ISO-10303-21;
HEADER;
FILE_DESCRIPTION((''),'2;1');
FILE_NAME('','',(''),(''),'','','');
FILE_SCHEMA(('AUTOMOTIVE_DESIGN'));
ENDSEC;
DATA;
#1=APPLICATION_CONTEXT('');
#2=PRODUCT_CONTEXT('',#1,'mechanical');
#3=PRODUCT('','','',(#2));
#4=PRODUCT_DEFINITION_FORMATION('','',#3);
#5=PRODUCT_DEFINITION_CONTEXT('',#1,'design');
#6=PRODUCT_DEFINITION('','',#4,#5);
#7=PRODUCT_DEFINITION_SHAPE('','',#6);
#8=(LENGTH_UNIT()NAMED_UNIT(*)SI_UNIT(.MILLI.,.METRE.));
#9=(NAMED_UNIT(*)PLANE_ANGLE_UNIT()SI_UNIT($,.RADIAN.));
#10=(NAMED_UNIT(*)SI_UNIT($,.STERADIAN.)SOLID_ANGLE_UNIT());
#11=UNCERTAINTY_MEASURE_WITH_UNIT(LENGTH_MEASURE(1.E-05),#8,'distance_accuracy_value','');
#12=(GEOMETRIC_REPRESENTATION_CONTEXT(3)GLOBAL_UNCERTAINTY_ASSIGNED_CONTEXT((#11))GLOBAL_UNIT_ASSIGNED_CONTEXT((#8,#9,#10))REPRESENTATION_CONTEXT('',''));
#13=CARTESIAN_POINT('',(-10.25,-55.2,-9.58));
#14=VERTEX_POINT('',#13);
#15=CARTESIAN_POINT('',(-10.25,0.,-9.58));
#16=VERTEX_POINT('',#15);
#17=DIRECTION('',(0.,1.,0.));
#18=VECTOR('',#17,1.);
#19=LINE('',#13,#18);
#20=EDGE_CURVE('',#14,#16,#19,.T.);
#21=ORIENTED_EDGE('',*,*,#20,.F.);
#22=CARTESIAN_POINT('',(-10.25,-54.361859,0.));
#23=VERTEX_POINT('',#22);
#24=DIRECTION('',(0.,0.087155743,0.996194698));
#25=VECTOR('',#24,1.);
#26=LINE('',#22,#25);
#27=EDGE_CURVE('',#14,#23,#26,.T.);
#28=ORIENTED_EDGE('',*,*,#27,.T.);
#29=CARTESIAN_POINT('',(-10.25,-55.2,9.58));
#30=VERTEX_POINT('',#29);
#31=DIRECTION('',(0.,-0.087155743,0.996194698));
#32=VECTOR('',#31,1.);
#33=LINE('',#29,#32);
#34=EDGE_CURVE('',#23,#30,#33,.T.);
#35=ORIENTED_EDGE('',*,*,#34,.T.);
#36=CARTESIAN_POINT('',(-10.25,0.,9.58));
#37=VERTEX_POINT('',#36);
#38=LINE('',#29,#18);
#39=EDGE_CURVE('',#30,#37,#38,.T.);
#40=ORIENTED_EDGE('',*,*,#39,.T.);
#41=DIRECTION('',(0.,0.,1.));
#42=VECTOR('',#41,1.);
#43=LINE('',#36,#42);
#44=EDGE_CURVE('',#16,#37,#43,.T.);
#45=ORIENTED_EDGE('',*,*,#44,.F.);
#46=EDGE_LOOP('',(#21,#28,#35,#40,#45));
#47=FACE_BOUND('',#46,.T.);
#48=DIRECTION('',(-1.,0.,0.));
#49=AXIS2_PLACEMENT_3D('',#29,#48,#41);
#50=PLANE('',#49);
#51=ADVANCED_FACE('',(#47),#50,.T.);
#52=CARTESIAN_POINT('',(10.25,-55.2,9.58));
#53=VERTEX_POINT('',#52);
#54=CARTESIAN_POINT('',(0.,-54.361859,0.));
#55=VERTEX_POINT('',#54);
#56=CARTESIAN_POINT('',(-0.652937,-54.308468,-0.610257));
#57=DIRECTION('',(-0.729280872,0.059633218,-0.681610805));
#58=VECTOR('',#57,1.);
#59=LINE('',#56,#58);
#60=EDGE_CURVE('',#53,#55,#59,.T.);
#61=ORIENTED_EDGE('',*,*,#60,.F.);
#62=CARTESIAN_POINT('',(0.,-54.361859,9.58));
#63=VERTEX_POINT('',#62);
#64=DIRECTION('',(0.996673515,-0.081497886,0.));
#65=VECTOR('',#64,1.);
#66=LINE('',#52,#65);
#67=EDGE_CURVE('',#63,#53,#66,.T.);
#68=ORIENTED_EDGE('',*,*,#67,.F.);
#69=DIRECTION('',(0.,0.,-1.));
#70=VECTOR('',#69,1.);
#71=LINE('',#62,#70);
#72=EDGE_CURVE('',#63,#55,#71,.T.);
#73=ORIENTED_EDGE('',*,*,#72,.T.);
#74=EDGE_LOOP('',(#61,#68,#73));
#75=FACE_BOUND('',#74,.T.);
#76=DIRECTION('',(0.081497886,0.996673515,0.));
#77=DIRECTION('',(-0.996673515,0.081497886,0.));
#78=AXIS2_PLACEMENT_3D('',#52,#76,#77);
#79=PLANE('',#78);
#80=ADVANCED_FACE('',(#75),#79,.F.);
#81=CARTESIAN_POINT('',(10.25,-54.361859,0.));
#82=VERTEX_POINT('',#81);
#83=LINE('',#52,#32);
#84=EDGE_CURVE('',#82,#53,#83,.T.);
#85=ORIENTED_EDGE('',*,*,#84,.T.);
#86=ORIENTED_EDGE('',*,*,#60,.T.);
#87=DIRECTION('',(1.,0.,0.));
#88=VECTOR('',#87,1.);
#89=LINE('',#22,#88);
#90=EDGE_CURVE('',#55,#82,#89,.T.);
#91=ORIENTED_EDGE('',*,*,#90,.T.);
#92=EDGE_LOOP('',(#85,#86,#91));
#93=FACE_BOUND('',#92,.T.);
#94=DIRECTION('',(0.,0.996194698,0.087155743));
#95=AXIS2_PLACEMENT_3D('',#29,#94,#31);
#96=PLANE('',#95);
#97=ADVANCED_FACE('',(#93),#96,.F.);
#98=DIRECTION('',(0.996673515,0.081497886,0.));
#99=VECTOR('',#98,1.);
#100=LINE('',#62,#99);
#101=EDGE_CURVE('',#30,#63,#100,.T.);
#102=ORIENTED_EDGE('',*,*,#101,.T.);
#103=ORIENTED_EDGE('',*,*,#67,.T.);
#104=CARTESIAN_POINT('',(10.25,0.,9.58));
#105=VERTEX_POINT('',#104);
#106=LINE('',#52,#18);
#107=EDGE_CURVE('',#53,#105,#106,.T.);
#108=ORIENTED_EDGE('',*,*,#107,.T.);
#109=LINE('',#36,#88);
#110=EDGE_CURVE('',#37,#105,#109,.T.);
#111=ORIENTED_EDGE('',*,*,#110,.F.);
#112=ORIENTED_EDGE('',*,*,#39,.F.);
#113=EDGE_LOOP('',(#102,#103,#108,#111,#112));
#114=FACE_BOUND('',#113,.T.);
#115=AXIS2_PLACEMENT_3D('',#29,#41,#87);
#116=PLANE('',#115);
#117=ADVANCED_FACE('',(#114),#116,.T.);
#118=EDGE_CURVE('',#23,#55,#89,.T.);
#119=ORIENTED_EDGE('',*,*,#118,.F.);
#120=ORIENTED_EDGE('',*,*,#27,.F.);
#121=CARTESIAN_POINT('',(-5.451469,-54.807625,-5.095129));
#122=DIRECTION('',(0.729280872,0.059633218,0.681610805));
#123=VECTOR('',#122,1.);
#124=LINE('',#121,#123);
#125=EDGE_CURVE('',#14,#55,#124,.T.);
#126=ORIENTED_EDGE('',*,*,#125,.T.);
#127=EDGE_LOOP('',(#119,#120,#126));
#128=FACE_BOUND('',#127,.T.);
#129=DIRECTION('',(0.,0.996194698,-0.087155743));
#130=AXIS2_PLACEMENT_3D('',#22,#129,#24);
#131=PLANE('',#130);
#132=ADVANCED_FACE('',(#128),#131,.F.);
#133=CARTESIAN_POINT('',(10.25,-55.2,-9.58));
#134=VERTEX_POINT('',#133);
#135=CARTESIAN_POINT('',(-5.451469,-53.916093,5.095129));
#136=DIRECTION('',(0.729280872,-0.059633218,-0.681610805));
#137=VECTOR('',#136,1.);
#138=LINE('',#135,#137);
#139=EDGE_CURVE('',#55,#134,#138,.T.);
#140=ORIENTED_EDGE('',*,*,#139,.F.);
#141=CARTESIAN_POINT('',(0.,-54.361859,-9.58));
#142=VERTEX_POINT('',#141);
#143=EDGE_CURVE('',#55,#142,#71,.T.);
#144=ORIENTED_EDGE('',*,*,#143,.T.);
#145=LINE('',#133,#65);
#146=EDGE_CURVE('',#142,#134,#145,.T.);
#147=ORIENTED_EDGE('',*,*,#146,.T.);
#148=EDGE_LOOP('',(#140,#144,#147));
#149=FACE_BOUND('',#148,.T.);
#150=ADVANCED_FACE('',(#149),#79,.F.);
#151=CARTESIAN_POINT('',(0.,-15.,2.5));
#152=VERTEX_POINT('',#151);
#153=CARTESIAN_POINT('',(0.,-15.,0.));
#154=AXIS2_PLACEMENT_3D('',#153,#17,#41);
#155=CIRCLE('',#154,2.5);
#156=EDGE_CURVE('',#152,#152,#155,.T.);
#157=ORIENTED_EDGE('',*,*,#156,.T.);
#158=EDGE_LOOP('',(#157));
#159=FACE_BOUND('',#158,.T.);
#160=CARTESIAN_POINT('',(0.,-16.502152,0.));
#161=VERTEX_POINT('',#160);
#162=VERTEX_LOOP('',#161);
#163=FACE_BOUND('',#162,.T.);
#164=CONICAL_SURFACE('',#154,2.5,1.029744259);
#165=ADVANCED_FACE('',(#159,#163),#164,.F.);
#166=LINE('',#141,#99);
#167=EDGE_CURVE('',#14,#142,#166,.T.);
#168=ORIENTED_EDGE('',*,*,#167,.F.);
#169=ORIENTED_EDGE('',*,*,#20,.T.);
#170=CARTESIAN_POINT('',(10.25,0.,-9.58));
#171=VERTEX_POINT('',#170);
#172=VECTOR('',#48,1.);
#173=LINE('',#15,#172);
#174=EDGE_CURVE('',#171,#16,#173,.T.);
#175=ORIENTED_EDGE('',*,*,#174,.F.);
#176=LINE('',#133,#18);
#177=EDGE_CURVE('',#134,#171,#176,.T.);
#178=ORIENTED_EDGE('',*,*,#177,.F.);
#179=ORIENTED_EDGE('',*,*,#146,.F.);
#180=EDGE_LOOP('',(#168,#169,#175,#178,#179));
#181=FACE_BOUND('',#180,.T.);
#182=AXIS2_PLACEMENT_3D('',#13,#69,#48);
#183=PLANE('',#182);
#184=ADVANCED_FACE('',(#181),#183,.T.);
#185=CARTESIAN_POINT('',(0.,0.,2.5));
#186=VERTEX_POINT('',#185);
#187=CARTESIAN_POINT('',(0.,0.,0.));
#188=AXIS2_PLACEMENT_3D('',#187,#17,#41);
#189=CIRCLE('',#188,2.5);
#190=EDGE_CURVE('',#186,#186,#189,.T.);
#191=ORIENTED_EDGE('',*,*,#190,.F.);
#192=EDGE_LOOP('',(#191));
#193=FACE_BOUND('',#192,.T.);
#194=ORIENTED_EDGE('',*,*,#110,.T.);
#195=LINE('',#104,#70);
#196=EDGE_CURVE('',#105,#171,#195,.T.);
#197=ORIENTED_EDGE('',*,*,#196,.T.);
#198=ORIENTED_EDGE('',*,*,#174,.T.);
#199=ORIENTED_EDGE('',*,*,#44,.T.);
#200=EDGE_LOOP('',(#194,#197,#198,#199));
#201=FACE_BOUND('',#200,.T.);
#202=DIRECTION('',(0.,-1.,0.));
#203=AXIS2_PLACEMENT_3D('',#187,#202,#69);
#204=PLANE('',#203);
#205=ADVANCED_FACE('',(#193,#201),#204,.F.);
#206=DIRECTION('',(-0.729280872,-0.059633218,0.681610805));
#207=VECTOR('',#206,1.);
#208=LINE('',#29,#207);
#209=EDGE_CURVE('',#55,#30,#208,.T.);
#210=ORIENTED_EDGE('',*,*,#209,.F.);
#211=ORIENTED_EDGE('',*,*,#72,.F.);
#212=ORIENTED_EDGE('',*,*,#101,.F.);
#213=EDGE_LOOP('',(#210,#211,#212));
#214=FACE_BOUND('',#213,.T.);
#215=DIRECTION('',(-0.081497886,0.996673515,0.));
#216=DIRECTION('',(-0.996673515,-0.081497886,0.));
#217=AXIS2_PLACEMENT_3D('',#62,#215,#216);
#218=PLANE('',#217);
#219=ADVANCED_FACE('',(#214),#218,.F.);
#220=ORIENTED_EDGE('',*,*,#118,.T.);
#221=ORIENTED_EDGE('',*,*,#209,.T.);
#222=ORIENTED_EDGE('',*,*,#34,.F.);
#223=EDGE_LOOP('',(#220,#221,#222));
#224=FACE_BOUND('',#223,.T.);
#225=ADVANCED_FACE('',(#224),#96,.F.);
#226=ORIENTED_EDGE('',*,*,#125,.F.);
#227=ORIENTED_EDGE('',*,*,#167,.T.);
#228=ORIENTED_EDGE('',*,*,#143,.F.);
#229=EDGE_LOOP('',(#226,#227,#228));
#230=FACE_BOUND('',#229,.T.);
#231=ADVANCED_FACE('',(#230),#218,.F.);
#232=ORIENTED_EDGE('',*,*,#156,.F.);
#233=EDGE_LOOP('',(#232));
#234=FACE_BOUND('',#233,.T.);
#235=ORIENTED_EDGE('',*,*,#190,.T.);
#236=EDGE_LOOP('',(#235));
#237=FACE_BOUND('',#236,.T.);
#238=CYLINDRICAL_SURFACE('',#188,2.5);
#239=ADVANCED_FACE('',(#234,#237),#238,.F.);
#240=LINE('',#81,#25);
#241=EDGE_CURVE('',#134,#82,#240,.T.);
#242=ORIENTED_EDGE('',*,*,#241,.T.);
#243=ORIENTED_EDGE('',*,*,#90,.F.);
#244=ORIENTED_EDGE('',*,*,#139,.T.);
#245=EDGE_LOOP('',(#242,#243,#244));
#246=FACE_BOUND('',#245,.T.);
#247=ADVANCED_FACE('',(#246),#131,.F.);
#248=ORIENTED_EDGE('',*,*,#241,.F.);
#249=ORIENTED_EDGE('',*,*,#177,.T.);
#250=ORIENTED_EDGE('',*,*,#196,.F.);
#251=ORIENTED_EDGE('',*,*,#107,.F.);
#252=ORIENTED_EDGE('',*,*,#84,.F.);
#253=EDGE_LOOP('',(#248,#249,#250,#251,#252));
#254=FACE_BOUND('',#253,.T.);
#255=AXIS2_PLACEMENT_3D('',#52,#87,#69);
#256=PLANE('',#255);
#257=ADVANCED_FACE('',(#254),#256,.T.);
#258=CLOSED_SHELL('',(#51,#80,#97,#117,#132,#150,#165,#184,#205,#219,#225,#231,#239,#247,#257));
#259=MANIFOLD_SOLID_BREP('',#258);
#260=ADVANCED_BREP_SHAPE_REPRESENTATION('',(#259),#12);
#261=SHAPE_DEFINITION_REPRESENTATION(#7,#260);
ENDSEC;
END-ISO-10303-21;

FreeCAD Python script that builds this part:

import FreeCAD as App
import Part
import Sketcher
from FreeCAD import Vector
Q = App.Units.Quantity


def add_polygon(sketch, points):
    """Adds a closed chain of lines whose ends are joined by coincident constraints."""
    first, n = sketch.GeometryCount, len(points)
    for a, b in zip(points, points[1:] + points[:1]):
        sketch.addGeometry(Part.LineSegment(App.Vector(*a, 0), App.Vector(*b, 0)), False)
    for i in range(n):
        sketch.addConstraint(Sketcher.Constraint("Coincident", first + i, 2, first + (i + 1) % n, 1))

doc = App.newDocument("Part")
params = doc.addObject("Spreadsheet::Sheet", "Params")
for row, (alias, value) in enumerate([
    ("sketch1_width", "20.5 mm"),
    ("sketch1_height", "19.16 mm"),
    ("pad1_length", "55.2 mm"),
    ("sketch2_height", "19.16 mm"),
    ("sketch3_width", "20.5 mm"),
    ("sketch4_diameter", "5 mm"),
    ("hole_diameter", "5 mm"),
    ("hole_depth", "15 mm"),
], start=1):
    params.set(f"A{row}", alias)
    params.set(f"B{row}", "=" + value)
    params.setAlias(f"B{row}", alias)

body = doc.addObject("PartDesign::Body", "Body")

sketch1 = body.newObject("Sketcher::SketchObject", "Sketch")
sketch1.AttachmentSupport = (doc.getObject("XZ_Plane"), [""])
sketch1.MapMode = "FlatFace"
add_polygon(sketch1, [(-10.25, -9.58), (-10.25, 9.58), (10.25, 9.58), (10.25, -9.58)])
sketch1.addConstraint([
    Sketcher.Constraint("Vertical", 0),
    Sketcher.Constraint("Horizontal", 1),
    Sketcher.Constraint("Vertical", 2),
    Sketcher.Constraint("Horizontal", 3),
    Sketcher.Constraint("Symmetric", 0, 2, 2, 2, -1, 1),
    Sketcher.Constraint("DistanceX", 1, 1, 1, 2, 20.5),
    Sketcher.Constraint("DistanceY", 0, 1, 0, 2, 19.16),
])
sketch1.setExpression("Constraints[9]", "Params.sketch1_width")
sketch1.setExpression("Constraints[10]", "Params.sketch1_height")
pad1 = body.newObject("PartDesign::Pad", "Pad")
pad1.Profile = sketch1
pad1.setExpression("Length", "Params.pad1_length")

sketch2 = body.newObject("Sketcher::SketchObject", "Sketch001")
sketch2.AttachmentSupport = (doc.getObject("YZ_Plane"), [""])
sketch2.MapMode = "FlatFace"
sketch2.AttachmentOffset = App.Placement(Vector(0, 0, 10.25), App.Rotation())
add_polygon(sketch2, [(-54.361859, 0), (-55.2, 9.58), (-55.2, -9.58)])
sketch2.addConstraint([
    Sketcher.Constraint("Vertical", 1),
    Sketcher.Constraint("PointOnObject", 2, 2, -1),
    Sketcher.Constraint("Equal", 0, 2),
    Sketcher.Constraint("Angle", 0, Q("95 deg")),
    Sketcher.Constraint("DistanceY", 1, 2, 1, 1, 19.16),
    Sketcher.Constraint("DistanceX", 0, 2, -1, 1, 55.2),
])
sketch2.setExpression("Constraints[7]", "Params.sketch2_height")
pocket1 = body.newObject("PartDesign::Pocket", "Pocket")
pocket1.Profile = sketch2
pocket1.Type = "ThroughAll"

sketch3 = body.newObject("Sketcher::SketchObject", "Sketch002")
sketch3.AttachmentSupport = (doc.getObject("XY_Plane"), [""])
sketch3.MapMode = "FlatFace"
sketch3.AttachmentOffset = App.Placement(Vector(0, 0, -9.58), App.Rotation())
add_polygon(sketch3, [(0, -54.361859), (10.25, -55.2), (-10.25, -55.2)])
sketch3.addConstraint([
    Sketcher.Constraint("Horizontal", 1),
    Sketcher.Constraint("PointOnObject", 2, 2, -2),
    Sketcher.Constraint("Equal", 0, 2),
    Sketcher.Constraint("DistanceX", 1, 2, 1, 1, 20.5),
    Sketcher.Constraint("DistanceY", 0, 2, -1, 1, 55.2),
    Sketcher.Constraint("Distance", 0, 10.28421),
])
sketch3.setExpression("Constraints[6]", "Params.sketch3_width")
pocket2 = body.newObject("PartDesign::Pocket", "Pocket001")
pocket2.Profile = sketch3
pocket2.Type = "ThroughAll"
pocket2.Reversed = True

sketch4 = body.newObject("Sketcher::SketchObject", "Sketch003")
sketch4.AttachmentSupport = (doc.getObject("XZ_Plane"), [""])
sketch4.MapMode = "FlatFace"
sketch4.addGeometry(Part.Circle(Vector(0, 0, 0), Vector(0, 0, 1), 2.5), False)
sketch4.addConstraint([
    Sketcher.Constraint("Coincident", 0, 3, -1, 1),
    Sketcher.Constraint("Diameter", 0, 5.0),
])
sketch4.setExpression("Constraints[1]", "Params.sketch4_diameter")
doc.recompute()
hole = body.newObject("PartDesign::Hole", "Hole")
hole.Profile = sketch4
hole.ThreadType = "None"
hole.setExpression("Diameter", "Params.hole_diameter")
hole.DepthType = "Dimension"
hole.setExpression("Depth", "Params.hole_depth")
hole.DrillPoint = "Angled"
hole.DrillPointAngle = 118
hole.Reversed = True

doc.recompute()
